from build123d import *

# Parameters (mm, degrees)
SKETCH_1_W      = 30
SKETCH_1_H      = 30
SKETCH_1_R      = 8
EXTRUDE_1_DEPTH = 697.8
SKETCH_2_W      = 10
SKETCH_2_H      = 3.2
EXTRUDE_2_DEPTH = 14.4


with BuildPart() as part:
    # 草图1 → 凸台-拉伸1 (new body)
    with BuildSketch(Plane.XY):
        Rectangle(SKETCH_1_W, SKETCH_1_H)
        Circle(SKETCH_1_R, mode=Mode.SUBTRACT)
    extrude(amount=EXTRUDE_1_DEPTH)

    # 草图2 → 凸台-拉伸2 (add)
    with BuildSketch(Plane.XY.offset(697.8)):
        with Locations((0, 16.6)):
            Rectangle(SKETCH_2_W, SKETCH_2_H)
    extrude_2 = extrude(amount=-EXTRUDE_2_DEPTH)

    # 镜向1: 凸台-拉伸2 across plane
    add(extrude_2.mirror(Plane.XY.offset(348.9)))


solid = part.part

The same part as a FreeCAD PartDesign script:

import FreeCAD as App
import Part
import Sketcher
Q = App.Units.Quantity


def add_polygon(sketch, points):
    """Adds a closed chain of lines whose ends are joined by coincident constraints."""
    first, n = sketch.GeometryCount, len(points)
    for a, b in zip(points, points[1:] + points[:1]):
        sketch.addGeometry(Part.LineSegment(App.Vector(*a, 0), App.Vector(*b, 0)), False)
    for i in range(n):
        sketch.addConstraint(Sketcher.Constraint("Coincident", first + i, 2, first + (i + 1) % n, 1))

doc = App.newDocument("Part")
params = doc.addObject("Spreadsheet::Sheet", "Params")
for row, (alias, value) in enumerate([
    ("sketch1_diameter", "16 mm"),
    ("sketch1_width", "30 mm"),
    ("pad1_length", "697.8 mm"),
    ("sketch2_width", "10 mm"),
    ("sketch2_height", "3.2 mm"),
    ("pad2_length", "14.4 mm"),
], start=1):
    params.set(f"A{row}", alias)
    params.set(f"B{row}", "=" + value)
    params.setAlias(f"B{row}", alias)

body = doc.addObject("PartDesign::Body", "Body")

# Sketch on XY plane
sketch1 = body.newObject("Sketcher::SketchObject", "Sketch")
sketch1.AttachmentSupport = (doc.getObject("XY_Plane"), [""])
sketch1.MapMode = "FlatFace"
add_polygon(sketch1, [(-15, 15), (-15, -15), (15, -15), (15, 15)])  # lines 0-3
sketch1.addGeometry(Part.Circle(App.Vector(0, 0, 0), App.Vector(0, 0, 1), 8), False)  # 4
sketch1.addConstraint([
    Sketcher.Constraint("Vertical", 0),
    Sketcher.Constraint("Horizontal", 1),
    Sketcher.Constraint("Vertical", 2),
    Sketcher.Constraint("Horizontal", 3),
    Sketcher.Constraint("Coincident", 4, 3, -1, 1),
    Sketcher.Constraint("Symmetric", 0, 2, 2, 2, -1, 1),
    Sketcher.Constraint("Equal", 3, 0),
    Sketcher.Constraint("Diameter", 4, Q("16 mm")),
    Sketcher.Constraint("DistanceX", 1, 1, 1, 2, Q("30 mm")),
])
sketch1.setExpression("Constraints[11]", "Params.sketch1_diameter")
sketch1.setExpression("Constraints[12]", "Params.sketch1_width")
pad1 = body.newObject("PartDesign::Pad", "Pad")
pad1.Profile = sketch1
pad1.setExpression("Length", "Params.pad1_length")

# Sketch on XY plane
sketch2 = body.newObject("Sketcher::SketchObject", "Sketch001")
sketch2.AttachmentSupport = (doc.getObject("XY_Plane"), [""])
sketch2.MapMode = "FlatFace"
sketch2.AttachmentOffset = App.Placement(App.Vector(0, 0, 697.8), App.Rotation())
add_polygon(sketch2, [(-5, 18.2), (-5, 15), (5, 15), (5, 18.2)])  # lines 0-3
sketch2.addConstraint([
    Sketcher.Constraint("Vertical", 0),
    Sketcher.Constraint("Horizontal", 1),
    Sketcher.Constraint("Vertical", 2),
    Sketcher.Constraint("Horizontal", 3),
    Sketcher.Constraint("DistanceX", 1, 1, 1, 2, Q("10 mm")),
    Sketcher.Constraint("DistanceY", 0, 2, 0, 1, Q("3.2 mm")),
    Sketcher.Constraint("DistanceX", 0, 2, -1, 1, Q("5 mm")),
    Sketcher.Constraint("DistanceY", -1, 1, 0, 2, Q("15 mm")),
])
sketch2.setExpression("Constraints[8]", "Params.sketch2_width")
sketch2.setExpression("Constraints[9]", "Params.sketch2_height")
pad2 = body.newObject("PartDesign::Pad", "Pad001")
pad2.Profile = sketch2
pad2.setExpression("Length", "Params.pad2_length")
pad2.Reversed = True
doc.recompute()

datumplane = body.newObject("PartDesign::Plane", "DatumPlane")
datumplane.AttachmentSupport = (doc.getObject("XY_Plane"), [""])
datumplane.MapMode = "FlatFace"
datumplane.AttachmentOffset = App.Placement(App.Vector(0, 0, 348.9), App.Rotation())
mirrored = body.newObject("PartDesign::Mirrored", "Mirrored")
mirrored.Originals = [pad2]
mirrored.MirrorPlane = (datumplane, [""])
body.Tip = mirrored

doc.recompute()
